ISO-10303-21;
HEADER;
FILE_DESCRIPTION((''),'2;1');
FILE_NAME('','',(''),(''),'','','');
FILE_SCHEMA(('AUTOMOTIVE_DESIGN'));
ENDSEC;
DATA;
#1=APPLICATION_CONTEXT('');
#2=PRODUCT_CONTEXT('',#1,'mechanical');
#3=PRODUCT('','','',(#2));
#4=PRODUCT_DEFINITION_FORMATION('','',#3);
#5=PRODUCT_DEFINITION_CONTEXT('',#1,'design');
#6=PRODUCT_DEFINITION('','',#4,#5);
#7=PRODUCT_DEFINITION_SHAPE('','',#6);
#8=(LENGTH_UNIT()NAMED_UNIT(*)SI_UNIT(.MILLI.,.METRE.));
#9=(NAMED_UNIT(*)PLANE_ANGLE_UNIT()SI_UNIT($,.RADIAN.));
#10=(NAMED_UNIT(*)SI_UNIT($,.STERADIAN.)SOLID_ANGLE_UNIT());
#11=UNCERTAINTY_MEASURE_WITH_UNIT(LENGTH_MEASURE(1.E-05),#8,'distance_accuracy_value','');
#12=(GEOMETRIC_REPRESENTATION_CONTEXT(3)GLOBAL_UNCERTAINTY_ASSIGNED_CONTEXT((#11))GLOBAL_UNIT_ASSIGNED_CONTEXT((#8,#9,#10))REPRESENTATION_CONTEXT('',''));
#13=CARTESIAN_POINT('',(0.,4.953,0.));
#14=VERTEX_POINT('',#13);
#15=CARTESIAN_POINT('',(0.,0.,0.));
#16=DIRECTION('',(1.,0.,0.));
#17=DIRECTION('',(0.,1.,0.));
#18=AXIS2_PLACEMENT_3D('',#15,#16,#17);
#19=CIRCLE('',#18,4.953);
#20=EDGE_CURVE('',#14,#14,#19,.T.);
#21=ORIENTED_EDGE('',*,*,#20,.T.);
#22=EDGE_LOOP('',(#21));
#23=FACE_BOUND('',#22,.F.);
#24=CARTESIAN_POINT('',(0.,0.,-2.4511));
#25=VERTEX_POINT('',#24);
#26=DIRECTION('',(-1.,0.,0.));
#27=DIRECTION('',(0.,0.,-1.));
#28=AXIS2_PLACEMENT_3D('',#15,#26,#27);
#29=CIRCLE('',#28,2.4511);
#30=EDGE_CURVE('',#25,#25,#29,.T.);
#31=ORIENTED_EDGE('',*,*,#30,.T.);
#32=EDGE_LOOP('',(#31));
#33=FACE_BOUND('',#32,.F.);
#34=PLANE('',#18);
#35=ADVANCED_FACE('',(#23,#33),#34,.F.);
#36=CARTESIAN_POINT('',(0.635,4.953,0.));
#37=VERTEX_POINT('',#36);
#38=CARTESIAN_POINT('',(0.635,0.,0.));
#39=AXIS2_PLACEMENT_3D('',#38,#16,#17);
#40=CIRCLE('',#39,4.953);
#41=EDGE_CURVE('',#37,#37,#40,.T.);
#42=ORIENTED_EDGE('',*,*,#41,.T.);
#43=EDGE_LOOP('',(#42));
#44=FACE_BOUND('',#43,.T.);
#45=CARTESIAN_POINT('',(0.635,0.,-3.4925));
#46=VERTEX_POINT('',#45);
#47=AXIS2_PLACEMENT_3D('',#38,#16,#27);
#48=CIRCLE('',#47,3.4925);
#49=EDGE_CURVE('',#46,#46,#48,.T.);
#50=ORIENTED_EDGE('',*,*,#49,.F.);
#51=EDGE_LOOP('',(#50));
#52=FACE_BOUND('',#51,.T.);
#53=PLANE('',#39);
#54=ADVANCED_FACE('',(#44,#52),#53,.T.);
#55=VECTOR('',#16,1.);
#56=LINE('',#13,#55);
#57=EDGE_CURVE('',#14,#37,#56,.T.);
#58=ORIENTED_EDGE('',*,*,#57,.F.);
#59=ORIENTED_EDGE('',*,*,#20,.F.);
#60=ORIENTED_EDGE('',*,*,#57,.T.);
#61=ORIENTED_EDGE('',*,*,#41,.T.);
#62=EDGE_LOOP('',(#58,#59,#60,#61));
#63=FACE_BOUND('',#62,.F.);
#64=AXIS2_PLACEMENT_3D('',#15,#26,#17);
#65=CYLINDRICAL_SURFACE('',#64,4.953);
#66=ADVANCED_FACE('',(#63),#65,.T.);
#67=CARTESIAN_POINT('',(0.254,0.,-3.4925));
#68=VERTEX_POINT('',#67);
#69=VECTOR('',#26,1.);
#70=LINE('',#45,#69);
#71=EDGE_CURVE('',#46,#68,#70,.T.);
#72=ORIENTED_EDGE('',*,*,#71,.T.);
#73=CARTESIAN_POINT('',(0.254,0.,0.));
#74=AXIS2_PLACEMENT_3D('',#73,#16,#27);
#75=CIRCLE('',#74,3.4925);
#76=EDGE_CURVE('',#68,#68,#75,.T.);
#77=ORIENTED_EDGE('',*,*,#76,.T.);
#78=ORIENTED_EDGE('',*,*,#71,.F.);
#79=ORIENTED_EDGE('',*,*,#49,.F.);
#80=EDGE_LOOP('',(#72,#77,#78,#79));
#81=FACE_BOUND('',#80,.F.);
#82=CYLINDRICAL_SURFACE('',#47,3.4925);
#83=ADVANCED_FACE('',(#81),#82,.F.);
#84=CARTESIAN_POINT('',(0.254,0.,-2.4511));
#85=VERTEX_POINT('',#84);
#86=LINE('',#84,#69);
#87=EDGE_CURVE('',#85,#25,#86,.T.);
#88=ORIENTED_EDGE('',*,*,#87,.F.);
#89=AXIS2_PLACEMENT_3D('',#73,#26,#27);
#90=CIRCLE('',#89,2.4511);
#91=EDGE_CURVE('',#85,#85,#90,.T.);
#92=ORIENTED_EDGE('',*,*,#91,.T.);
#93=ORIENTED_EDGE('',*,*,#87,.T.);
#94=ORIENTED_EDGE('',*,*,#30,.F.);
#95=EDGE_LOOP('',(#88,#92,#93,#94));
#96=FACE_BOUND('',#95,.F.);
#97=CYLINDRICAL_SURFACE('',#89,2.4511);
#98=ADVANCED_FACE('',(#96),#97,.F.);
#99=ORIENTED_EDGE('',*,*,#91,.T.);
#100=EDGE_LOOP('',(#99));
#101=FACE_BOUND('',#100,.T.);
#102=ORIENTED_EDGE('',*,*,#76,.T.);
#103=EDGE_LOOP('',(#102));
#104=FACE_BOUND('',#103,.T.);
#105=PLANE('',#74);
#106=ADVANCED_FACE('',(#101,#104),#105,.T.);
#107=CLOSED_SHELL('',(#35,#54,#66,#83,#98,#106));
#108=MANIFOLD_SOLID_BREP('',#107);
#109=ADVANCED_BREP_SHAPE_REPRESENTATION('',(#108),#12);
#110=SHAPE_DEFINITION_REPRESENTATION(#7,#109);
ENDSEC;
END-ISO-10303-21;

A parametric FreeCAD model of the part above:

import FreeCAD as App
import Part
import Sketcher
Q = App.Units.Quantity

doc = App.newDocument("Part")
body = doc.addObject("PartDesign::Body", "Body")

sketch1 = doc.addObject("Sketcher::SketchObject", "Sketch")
body.addObject(sketch1)
sketch1.AttachmentSupport = (doc.YZ_Plane, [""])
sketch1.MapMode = "FlatFace"
sketch1.addGeometry(Part.Circle(App.Vector(0, 0, 0), App.Vector(0, 0, 1), 5), False)
sketch1.addConstraint(Sketcher.Constraint("Coincident", 0, 3, -1, 1))
sketch1.addConstraint(Sketcher.Constraint("Diameter", 0, Q("0.39 in")))
pad1 = doc.addObject("PartDesign::Pad", "Pad")
body.addObject(pad1)
pad1.Profile = sketch1
pad1.Length = Q("0.025 in")

sketch2 = doc.addObject("Sketcher::SketchObject", "Sketch001")
body.addObject(sketch2)
sketch2.AttachmentSupport = (doc.YZ_Plane, [""])
sketch2.MapMode = "FlatFace"
sketch2.AttachmentOffset = App.Placement(App.Vector(0, 0, 0.025 * 25.4), App.Rotation())
sketch2.addGeometry(Part.Circle(App.Vector(0, 0, 0), App.Vector(0, 0, 1), 3.5), False)
sketch2.addConstraint(Sketcher.Constraint("Coincident", 0, 3, -1, 1))
sketch2.addConstraint(Sketcher.Constraint("Diameter", 0, Q("0.275 in")))
pocket1 = doc.addObject("PartDesign::Pocket", "Pocket")
body.addObject(pocket1)
pocket1.Profile = sketch2
pocket1.Length = Q("0.015 in")

sketch3 = doc.addObject("Sketcher::SketchObject", "Sketch002")
body.addObject(sketch3)
sketch3.AttachmentSupport = (doc.YZ_Plane, [""])
sketch3.MapMode = "FlatFace"
sketch3.AttachmentOffset = App.Placement(App.Vector(0, 0, 0.01 * 25.4), App.Rotation())
sketch3.addGeometry(Part.Circle(App.Vector(0, 0, 0), App.Vector(0, 0, 1), 2.5), False)
sketch3.addConstraint(Sketcher.Constraint("Coincident", 0, 3, -1, 1))
sketch3.addConstraint(Sketcher.Constraint("Diameter", 0, Q("0.193 in")))
doc.recompute()
hole = doc.addObject("PartDesign::Hole", "Hole")
body.addObject(hole)
hole.Profile = sketch3
hole.ThreadType = "None"
hole.Diameter = Q("0.193 in")
hole.DepthType = "ThroughAll"

doc.recompute()
